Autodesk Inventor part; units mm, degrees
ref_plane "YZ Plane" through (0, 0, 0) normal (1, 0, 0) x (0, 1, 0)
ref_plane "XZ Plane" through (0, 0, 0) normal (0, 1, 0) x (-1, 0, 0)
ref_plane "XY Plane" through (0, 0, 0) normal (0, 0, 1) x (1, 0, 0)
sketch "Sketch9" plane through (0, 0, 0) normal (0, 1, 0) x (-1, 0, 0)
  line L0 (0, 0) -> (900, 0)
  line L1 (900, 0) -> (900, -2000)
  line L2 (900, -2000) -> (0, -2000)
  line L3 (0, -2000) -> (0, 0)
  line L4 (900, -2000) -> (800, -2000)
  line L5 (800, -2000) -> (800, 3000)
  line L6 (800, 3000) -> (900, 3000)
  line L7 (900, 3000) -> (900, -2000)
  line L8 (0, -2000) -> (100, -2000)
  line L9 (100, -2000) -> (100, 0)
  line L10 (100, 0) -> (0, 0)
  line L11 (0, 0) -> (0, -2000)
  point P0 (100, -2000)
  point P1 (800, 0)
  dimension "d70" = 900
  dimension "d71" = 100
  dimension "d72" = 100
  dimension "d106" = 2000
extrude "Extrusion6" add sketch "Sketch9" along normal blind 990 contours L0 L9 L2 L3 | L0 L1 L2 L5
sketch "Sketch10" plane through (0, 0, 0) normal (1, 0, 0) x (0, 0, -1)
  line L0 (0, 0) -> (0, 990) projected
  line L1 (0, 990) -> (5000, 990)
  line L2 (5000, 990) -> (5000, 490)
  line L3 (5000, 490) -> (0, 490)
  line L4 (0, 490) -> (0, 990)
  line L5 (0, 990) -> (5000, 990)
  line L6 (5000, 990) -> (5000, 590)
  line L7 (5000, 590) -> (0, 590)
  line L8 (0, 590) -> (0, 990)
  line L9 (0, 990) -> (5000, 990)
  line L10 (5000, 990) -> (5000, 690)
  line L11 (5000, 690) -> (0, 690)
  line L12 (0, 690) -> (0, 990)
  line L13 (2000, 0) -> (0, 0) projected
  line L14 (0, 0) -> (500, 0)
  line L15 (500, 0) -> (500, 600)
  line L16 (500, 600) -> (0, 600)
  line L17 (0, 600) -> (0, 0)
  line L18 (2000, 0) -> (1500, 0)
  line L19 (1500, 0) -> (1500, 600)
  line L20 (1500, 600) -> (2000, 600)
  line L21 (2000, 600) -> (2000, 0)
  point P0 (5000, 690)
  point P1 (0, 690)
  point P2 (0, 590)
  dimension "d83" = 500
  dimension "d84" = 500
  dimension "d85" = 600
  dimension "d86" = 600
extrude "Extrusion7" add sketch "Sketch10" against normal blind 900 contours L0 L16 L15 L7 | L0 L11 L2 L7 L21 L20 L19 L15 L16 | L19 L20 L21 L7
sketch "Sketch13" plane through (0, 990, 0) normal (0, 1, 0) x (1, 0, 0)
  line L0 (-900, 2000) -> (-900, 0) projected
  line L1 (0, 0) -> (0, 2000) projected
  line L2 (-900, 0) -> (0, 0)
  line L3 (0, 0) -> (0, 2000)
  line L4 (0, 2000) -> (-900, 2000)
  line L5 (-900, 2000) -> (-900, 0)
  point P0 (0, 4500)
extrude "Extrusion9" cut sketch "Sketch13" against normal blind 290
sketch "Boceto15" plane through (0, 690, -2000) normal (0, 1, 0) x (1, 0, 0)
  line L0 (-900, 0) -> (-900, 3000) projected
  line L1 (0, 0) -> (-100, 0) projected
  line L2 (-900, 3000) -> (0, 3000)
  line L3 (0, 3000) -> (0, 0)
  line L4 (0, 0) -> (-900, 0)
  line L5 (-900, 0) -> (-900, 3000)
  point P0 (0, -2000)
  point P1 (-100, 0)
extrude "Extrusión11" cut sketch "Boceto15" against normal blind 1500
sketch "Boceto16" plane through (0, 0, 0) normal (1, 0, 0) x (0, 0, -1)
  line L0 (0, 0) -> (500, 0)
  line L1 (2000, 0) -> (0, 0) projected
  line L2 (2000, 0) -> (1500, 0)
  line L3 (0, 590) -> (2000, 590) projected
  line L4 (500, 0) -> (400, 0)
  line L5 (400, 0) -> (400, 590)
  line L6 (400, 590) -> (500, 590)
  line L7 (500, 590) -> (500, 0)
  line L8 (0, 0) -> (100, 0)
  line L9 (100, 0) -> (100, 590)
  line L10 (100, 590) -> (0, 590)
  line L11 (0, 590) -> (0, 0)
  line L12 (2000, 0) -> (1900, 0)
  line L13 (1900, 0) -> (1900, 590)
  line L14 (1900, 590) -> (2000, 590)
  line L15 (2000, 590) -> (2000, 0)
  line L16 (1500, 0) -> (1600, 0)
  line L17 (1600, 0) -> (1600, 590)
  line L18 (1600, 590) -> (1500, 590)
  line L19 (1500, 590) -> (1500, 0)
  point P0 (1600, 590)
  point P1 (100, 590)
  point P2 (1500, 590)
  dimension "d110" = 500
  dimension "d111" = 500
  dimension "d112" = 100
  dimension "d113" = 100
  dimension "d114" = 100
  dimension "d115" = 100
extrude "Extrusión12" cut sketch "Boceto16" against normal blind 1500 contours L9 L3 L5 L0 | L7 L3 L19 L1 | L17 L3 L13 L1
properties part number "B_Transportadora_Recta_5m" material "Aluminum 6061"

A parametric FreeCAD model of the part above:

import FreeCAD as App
import Part
import Sketcher

V = App.Vector

doc = App.newDocument("Part")
body = doc.addObject("PartDesign::Body", "Body")
body.AllowCompound = True

sketch1 = body.newObject("Sketcher::SketchObject", "Sketch")
sketch1.AttachmentSupport = (doc.getObject("XZ_Plane"), [""])
sketch1.MapMode = "FlatFace"
sketch1.addGeometry([
    Part.LineSegment(V(-100, 0, 0), V(0, 0, 0)),
    Part.LineSegment(V(0, 0, 0), V(0, -2000, 0)),
    Part.LineSegment(V(0, -2000, 0), V(-100, -2000, 0)),
    Part.LineSegment(V(-100, -2000, 0), V(-100, 0, 0)),
    Part.LineSegment(V(-900, 0, 0), V(-800, 0, 0)),
    Part.LineSegment(V(-800, 0, 0), V(-800, -2000, 0)),
    Part.LineSegment(V(-800, -2000, 0), V(-900, -2000, 0)),
    Part.LineSegment(V(-900, -2000, 0), V(-900, 0, 0)),
], False)
sketch1.addConstraint([
    Sketcher.Constraint("Coincident", 0, 2, 1, 1),
    Sketcher.Constraint("Coincident", 1, 2, 2, 1),
    Sketcher.Constraint("Coincident", 2, 2, 3, 1),
    Sketcher.Constraint("Coincident", 3, 2, 0, 1),
    Sketcher.Constraint("Coincident", 4, 2, 5, 1),
    Sketcher.Constraint("Coincident", 5, 2, 6, 1),
    Sketcher.Constraint("Coincident", 6, 2, 7, 1),
    Sketcher.Constraint("Coincident", 7, 2, 4, 1),
    Sketcher.Constraint("Horizontal", 0),
    Sketcher.Constraint("Vertical", 1),
    Sketcher.Constraint("Horizontal", 2),
    Sketcher.Constraint("Vertical", 3),
    Sketcher.Constraint("Horizontal", 4),
    Sketcher.Constraint("Vertical", 5),
    Sketcher.Constraint("Horizontal", 6),
    Sketcher.Constraint("Vertical", 7),
    Sketcher.Constraint("Coincident", 0, 2, -1, 1),
    Sketcher.Constraint("PointOnObject", 4, 2, -1),
    Sketcher.Constraint("Horizontal", 2, 2, 5, 2),
    Sketcher.Constraint("Equal", 2, 4),
    Sketcher.Constraint("DistanceX", 0, 1, 0, 2, 100.0),
    Sketcher.Constraint("DistanceY", 1, 2, 1, 1, 2000.0),
    Sketcher.Constraint("DistanceX", 6, 2, -1, 1, 900.0),
])
pad1 = body.newObject("PartDesign::Pad", "Pad")
pad1.Profile = sketch1
pad1.Length = 990
pad1.Reversed = True

sketch2 = body.newObject("Sketcher::SketchObject", "Sketch001")
sketch2.AttachmentSupport = (doc.getObject("YZ_Plane"), [""])
sketch2.MapMode = "FlatFace"
sketch2.addGeometry([
    Part.LineSegment(V(590, 0, 0), V(590, -5000, 0)),
    Part.LineSegment(V(590, -5000, 0), V(690, -5000, 0)),
    Part.LineSegment(V(690, -5000, 0), V(690, 0, 0)),
    Part.LineSegment(V(690, 0, 0), V(590, 0, 0)),
], False)
sketch2.addConstraint([
    Sketcher.Constraint("Coincident", 0, 2, 1, 1),
    Sketcher.Constraint("Coincident", 1, 2, 2, 1),
    Sketcher.Constraint("Coincident", 2, 2, 3, 1),
    Sketcher.Constraint("Coincident", 3, 2, 0, 1),
    Sketcher.Constraint("Vertical", 0),
    Sketcher.Constraint("Horizontal", 1),
    Sketcher.Constraint("Vertical", 2),
    Sketcher.Constraint("Horizontal", 3),
    Sketcher.Constraint("PointOnObject", 2, 2, -1),
    Sketcher.Constraint("DistanceX", 1, 1, 1, 2, 100.0),
    Sketcher.Constraint("DistanceY", 0, 2, 0, 1, 5000.0),
    Sketcher.Constraint("DistanceX", -1, 1, 0, 2, 590.0),
])
pad2 = body.newObject("PartDesign::Pad", "Pad001")
pad2.Profile = sketch2
pad2.Length = 900
pad2.Reversed = True

sketch3 = body.newObject("Sketcher::SketchObject", "Sketch002")
sketch3.AttachmentSupport = (doc.getObject("XZ_Plane"), [""])
sketch3.MapMode = "FlatFace"
sketch3.AttachmentOffset = App.Placement(V(0, 0, -990), App.Rotation())
sketch3.addGeometry([
    Part.LineSegment(V(0, -2000, 0), V(-900, -2000, 0)),
    Part.LineSegment(V(-900, -2000, 0), V(-900, 0, 0)),
    Part.LineSegment(V(-900, 0, 0), V(0, 0, 0)),
    Part.LineSegment(V(0, 0, 0), V(0, -2000, 0)),
], False)
sketch3.addConstraint([
    Sketcher.Constraint("Coincident", 0, 2, 1, 1),
    Sketcher.Constraint("Coincident", 1, 2, 2, 1),
    Sketcher.Constraint("Coincident", 2, 2, 3, 1),
    Sketcher.Constraint("Coincident", 3, 2, 0, 1),
    Sketcher.Constraint("Horizontal", 0),
    Sketcher.Constraint("Vertical", 1),
    Sketcher.Constraint("Horizontal", 2),
    Sketcher.Constraint("Vertical", 3),
    Sketcher.Constraint("Coincident", 2, 2, -1, 1),
    Sketcher.Constraint("DistanceX", 0, 2, 0, 1, 900.0),
    Sketcher.Constraint("DistanceY", 1, 1, 1, 2, 2000.0),
])
pocket1 = body.newObject("PartDesign::Pocket", "Pocket")
pocket1.Profile = sketch3
pocket1.Length = 290
pocket1.Reversed = True

sketch4 = body.newObject("Sketcher::SketchObject", "Sketch003")
sketch4.AttachmentSupport = (doc.getObject("XZ_Plane"), [""])
sketch4.MapMode = "FlatFace"
sketch4.AttachmentOffset = App.Placement(V(0, 0, -690), App.Rotation())
sketch4.addGeometry([
    Part.LineSegment(V(-900, -5000, 0), V(-900, -2000, 0)),
    Part.LineSegment(V(-900, -2000, 0), V(0, -2000, 0)),
    Part.LineSegment(V(0, -2000, 0), V(0, -5000, 0)),
    Part.LineSegment(V(0, -5000, 0), V(-900, -5000, 0)),
], False)
sketch4.addConstraint([
    Sketcher.Constraint("Coincident", 0, 2, 1, 1),
    Sketcher.Constraint("Coincident", 1, 2, 2, 1),
    Sketcher.Constraint("Coincident", 2, 2, 3, 1),
    Sketcher.Constraint("Coincident", 3, 2, 0, 1),
    Sketcher.Constraint("Vertical", 0),
    Sketcher.Constraint("Horizontal", 1),
    Sketcher.Constraint("Vertical", 2),
    Sketcher.Constraint("Horizontal", 3),
    Sketcher.Constraint("PointOnObject", 1, 2, -2),
    Sketcher.Constraint("DistanceX", 1, 1, 1, 2, 900.0),
    Sketcher.Constraint("DistanceY", 0, 1, 0, 2, 3000.0),
    Sketcher.Constraint("DistanceY", 0, 2, -1, 1, 2000.0),
])
pocket2 = body.newObject("PartDesign::Pocket", "Pocket001")
pocket2.Profile = sketch4
pocket2.Length = 1500
pocket2.Reversed = True

sketch5 = body.newObject("Sketcher::SketchObject", "Sketch004")
sketch5.AttachmentSupport = (doc.getObject("YZ_Plane"), [""])
sketch5.MapMode = "FlatFace"
sketch5.addGeometry([
    Part.LineSegment(V(590, -100, 0), V(0, -100, 0)),
    Part.LineSegment(V(0, -100, 0), V(0, -400, 0)),
    Part.LineSegment(V(0, -400, 0), V(590, -400, 0)),
    Part.LineSegment(V(590, -400, 0), V(590, -100, 0)),
    Part.LineSegment(V(590, -500, 0), V(0, -500, 0)),
    Part.LineSegment(V(0, -500, 0), V(0, -1500, 0)),
    Part.LineSegment(V(0, -1500, 0), V(590, -1500, 0)),
    Part.LineSegment(V(590, -1500, 0), V(590, -500, 0)),
    Part.LineSegment(V(590, -1600, 0), V(0, -1600, 0)),
    Part.LineSegment(V(0, -1600, 0), V(0, -1900, 0)),
    Part.LineSegment(V(0, -1900, 0), V(590, -1900, 0)),
    Part.LineSegment(V(590, -1900, 0), V(590, -1600, 0)),
], False)
sketch5.addConstraint([
    Sketcher.Constraint("Coincident", 0, 2, 1, 1),
    Sketcher.Constraint("Coincident", 1, 2, 2, 1),
    Sketcher.Constraint("Coincident", 2, 2, 3, 1),
    Sketcher.Constraint("Coincident", 3, 2, 0, 1),
    Sketcher.Constraint("Coincident", 4, 2, 5, 1),
    Sketcher.Constraint("Coincident", 5, 2, 6, 1),
    Sketcher.Constraint("Coincident", 6, 2, 7, 1),
    Sketcher.Constraint("Coincident", 7, 2, 4, 1),
    Sketcher.Constraint("Coincident", 8, 2, 9, 1),
    Sketcher.Constraint("Coincident", 9, 2, 10, 1),
    Sketcher.Constraint("Coincident", 10, 2, 11, 1),
    Sketcher.Constraint("Coincident", 11, 2, 8, 1),
    Sketcher.Constraint("Horizontal", 0),
    Sketcher.Constraint("Vertical", 1),
    Sketcher.Constraint("Horizontal", 2),
    Sketcher.Constraint("Vertical", 3),
    Sketcher.Constraint("Horizontal", 4),
    Sketcher.Constraint("Vertical", 5),
    Sketcher.Constraint("Horizontal", 6),
    Sketcher.Constraint("Vertical", 7),
    Sketcher.Constraint("Horizontal", 8),
    Sketcher.Constraint("Vertical", 9),
    Sketcher.Constraint("Horizontal", 10),
    Sketcher.Constraint("Vertical", 11),
    Sketcher.Constraint("PointOnObject", 0, 2, -2),
    Sketcher.Constraint("PointOnObject", 4, 2, -2),
    Sketcher.Constraint("PointOnObject", 8, 2, -2),
    Sketcher.Constraint("Vertical", 3, 2, 6, 2),
    Sketcher.Constraint("Vertical", 7, 2, 10, 2),
    Sketcher.Constraint("Equal", 3, 9),
    Sketcher.Constraint("DistanceY", 0, 2, -1, 1, 100.0),
    Sketcher.Constraint("DistanceY", 4, 2, -1, 1, 500.0),
    Sketcher.Constraint("DistanceY", 4, 2, 1, 2, 100.0),
    Sketcher.Constraint("DistanceY", 8, 2, 5, 2, 100.0),
    Sketcher.Constraint("DistanceX", 0, 2, 0, 1, 590.0),
    Sketcher.Constraint("DistanceY", 5, 2, 5, 1, 1000.0),
])
pocket3 = body.newObject("PartDesign::Pocket", "Pocket002")
pocket3.Profile = sketch5
pocket3.Length = 1500

doc.recompute()
